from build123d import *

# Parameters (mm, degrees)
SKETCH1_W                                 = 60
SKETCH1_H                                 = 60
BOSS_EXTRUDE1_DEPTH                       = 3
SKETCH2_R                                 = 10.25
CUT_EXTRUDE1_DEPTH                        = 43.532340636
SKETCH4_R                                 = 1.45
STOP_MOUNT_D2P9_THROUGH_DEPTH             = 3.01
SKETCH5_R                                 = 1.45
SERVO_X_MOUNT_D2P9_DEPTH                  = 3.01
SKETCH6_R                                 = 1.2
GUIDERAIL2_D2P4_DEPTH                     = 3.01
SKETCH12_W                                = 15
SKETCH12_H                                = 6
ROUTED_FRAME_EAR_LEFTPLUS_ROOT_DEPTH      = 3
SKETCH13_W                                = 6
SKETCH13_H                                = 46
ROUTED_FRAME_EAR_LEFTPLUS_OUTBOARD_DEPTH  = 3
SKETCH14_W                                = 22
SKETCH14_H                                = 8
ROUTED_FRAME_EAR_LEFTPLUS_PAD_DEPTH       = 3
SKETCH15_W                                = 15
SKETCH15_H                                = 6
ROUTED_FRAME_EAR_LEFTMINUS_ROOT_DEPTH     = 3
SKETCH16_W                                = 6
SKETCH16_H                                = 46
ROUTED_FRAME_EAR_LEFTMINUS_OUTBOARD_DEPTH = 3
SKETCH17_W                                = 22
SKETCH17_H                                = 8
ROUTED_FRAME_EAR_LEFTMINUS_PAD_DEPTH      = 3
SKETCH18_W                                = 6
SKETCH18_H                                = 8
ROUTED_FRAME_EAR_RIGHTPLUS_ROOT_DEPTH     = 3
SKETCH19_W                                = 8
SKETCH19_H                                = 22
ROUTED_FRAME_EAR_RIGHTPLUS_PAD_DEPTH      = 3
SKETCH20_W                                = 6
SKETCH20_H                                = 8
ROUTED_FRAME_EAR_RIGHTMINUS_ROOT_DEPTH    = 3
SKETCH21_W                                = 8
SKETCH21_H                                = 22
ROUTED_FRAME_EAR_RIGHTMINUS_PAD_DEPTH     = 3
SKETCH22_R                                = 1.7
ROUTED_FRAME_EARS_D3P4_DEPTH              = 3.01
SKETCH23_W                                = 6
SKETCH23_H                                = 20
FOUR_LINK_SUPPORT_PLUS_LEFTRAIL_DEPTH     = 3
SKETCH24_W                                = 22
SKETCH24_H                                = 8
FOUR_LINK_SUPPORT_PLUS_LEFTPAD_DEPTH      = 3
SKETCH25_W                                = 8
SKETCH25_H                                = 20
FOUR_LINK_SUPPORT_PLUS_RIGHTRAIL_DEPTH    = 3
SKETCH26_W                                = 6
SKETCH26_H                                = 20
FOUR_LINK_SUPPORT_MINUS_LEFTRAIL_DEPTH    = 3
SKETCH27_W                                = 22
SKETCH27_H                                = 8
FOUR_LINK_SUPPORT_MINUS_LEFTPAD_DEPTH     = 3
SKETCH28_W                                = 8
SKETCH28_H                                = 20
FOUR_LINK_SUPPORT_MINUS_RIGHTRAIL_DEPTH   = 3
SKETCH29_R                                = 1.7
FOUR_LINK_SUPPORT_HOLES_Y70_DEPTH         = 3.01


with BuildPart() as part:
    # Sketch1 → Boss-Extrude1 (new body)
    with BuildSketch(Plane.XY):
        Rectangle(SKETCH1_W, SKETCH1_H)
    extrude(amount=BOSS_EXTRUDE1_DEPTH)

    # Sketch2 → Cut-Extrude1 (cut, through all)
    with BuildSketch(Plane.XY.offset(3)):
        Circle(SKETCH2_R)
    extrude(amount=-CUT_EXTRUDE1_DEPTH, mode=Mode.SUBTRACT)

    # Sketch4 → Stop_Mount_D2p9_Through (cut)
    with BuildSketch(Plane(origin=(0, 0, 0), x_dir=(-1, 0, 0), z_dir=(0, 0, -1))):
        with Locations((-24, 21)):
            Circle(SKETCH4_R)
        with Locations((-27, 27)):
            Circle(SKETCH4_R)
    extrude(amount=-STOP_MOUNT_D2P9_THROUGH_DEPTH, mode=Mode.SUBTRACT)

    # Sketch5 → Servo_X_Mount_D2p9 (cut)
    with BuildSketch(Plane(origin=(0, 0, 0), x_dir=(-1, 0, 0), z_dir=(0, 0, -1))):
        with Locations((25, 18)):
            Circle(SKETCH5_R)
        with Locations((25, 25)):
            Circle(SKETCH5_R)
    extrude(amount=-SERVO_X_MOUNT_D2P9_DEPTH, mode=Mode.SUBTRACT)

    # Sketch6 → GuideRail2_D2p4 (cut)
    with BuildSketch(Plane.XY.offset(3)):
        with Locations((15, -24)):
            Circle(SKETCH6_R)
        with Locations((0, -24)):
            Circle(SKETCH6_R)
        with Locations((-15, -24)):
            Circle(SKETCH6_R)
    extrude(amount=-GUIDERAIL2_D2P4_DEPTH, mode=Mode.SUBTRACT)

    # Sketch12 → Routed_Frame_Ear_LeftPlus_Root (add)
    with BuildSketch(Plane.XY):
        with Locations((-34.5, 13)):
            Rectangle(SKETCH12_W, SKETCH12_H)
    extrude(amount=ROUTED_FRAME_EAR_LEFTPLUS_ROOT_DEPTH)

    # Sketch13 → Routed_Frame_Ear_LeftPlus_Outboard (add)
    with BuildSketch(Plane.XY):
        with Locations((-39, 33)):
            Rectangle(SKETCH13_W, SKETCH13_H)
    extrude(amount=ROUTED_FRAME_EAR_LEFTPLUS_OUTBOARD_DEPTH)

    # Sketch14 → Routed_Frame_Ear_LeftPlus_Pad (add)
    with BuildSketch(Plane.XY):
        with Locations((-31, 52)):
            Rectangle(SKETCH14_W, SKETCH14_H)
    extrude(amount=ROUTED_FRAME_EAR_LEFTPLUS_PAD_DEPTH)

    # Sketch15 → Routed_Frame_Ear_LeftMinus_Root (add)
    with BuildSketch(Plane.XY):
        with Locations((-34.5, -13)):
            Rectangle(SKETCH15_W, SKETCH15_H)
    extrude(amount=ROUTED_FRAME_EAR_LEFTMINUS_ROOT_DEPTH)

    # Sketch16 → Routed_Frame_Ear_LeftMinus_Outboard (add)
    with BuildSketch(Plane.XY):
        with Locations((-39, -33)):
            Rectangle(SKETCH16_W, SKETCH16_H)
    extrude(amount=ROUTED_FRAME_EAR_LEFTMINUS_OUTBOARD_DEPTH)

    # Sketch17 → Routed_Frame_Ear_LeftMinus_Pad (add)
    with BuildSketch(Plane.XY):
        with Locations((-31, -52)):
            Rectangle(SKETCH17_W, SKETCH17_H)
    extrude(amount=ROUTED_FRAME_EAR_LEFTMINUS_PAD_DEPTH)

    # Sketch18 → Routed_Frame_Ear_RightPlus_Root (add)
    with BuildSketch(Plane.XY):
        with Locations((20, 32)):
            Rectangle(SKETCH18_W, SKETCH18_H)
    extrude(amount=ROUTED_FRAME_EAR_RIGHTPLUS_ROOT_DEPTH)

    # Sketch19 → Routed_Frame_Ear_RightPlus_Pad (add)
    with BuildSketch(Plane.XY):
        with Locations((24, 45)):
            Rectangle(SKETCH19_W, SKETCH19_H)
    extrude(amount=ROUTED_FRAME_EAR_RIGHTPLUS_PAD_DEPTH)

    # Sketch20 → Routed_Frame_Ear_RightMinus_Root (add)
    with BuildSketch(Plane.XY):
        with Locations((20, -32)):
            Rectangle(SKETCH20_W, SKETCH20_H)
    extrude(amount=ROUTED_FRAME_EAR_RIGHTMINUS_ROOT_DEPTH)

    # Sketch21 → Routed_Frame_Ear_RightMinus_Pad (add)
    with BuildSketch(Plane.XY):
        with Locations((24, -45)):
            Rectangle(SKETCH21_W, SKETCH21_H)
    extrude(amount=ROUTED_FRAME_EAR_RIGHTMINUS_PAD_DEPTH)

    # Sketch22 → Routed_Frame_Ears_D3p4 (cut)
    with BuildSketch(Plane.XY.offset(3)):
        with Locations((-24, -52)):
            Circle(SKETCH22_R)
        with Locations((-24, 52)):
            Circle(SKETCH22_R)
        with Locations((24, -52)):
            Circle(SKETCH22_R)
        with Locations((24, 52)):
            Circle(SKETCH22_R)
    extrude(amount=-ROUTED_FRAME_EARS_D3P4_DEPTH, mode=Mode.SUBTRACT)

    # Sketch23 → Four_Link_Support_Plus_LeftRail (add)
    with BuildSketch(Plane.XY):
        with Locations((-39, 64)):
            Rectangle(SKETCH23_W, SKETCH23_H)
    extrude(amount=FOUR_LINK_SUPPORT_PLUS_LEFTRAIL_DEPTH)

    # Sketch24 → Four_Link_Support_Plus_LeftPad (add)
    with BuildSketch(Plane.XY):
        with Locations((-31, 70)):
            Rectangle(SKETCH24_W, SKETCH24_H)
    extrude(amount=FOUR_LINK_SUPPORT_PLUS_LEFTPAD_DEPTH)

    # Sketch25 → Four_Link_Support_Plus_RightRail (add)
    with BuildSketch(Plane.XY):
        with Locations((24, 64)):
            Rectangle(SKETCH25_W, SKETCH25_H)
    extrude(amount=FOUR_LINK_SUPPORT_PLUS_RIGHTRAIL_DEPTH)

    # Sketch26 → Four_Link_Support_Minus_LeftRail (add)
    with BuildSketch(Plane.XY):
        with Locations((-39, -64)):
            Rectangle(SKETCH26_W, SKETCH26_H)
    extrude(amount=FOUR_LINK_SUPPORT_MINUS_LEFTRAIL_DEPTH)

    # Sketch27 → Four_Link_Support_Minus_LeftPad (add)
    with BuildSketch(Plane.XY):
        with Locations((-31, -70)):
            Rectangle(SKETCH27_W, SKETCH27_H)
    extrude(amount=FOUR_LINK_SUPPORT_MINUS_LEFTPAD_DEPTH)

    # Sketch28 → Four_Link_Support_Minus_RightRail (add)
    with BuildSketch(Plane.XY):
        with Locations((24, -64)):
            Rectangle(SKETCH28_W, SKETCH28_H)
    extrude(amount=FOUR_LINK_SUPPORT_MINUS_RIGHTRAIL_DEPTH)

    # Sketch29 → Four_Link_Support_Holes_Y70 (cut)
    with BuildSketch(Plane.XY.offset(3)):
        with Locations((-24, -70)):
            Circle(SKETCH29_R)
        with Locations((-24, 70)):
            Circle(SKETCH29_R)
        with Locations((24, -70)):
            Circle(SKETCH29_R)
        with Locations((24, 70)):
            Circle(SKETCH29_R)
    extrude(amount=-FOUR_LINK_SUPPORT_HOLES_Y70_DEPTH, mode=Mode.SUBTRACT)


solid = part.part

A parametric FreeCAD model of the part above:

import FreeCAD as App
import Part
import Sketcher
from FreeCAD import Vector


def add_polygon(sketch, points):
    """Adds a closed chain of lines whose ends are joined by coincident constraints."""
    first, n = sketch.GeometryCount, len(points)
    for a, b in zip(points, points[1:] + points[:1]):
        sketch.addGeometry(Part.LineSegment(App.Vector(*a, 0), App.Vector(*b, 0)), False)
    for i in range(n):
        sketch.addConstraint(Sketcher.Constraint("Coincident", first + i, 2, first + (i + 1) % n, 1))

doc = App.newDocument("Part")
params = doc.addObject("Spreadsheet::Sheet", "Params")
for row, (alias, value) in enumerate([
    ("sketch1_width", "60 mm"),
    ("pad1_length", "3 mm"),
    ("sketch2_diameter", "20.5 mm"),
    ("sketch3_diameter", "2.9 mm"),
    ("pocket2_length", "3.01 mm"),
    ("sketch4_diameter", "2.9 mm"),
    ("pocket3_length", "3.01 mm"),
    ("sketch5_diameter", "2.4 mm"),
    ("pocket4_length", "3.01 mm"),
    ("sketch6_width", "15 mm"),
    ("sketch6_height", "6 mm"),
    ("pad2_length", "3 mm"),
    ("sketch7_width", "6 mm"),
    ("sketch7_height", "46 mm"),
    ("pad3_length", "3 mm"),
    ("sketch8_width", "22 mm"),
    ("sketch8_height", "8 mm"),
    ("pad4_length", "3 mm"),
    ("sketch9_width", "15 mm"),
    ("sketch9_height", "6 mm"),
    ("pad5_length", "3 mm"),
    ("sketch10_width", "6 mm"),
    ("sketch10_height", "46 mm"),
    ("pad6_length", "3 mm"),
    ("sketch11_width", "22 mm"),
    ("sketch11_height", "8 mm"),
    ("pad7_length", "3 mm"),
    ("sketch12_width", "6 mm"),
    ("sketch12_height", "8 mm"),
    ("pad8_length", "3 mm"),
    ("sketch13_width", "8 mm"),
    ("sketch13_height", "22 mm"),
    ("pad9_length", "3 mm"),
    ("sketch14_width", "6 mm"),
    ("sketch14_height", "8 mm"),
    ("pad10_length", "3 mm"),
    ("sketch15_width", "8 mm"),
    ("sketch15_height", "22 mm"),
    ("pad11_length", "3 mm"),
    ("sketch16_diameter", "3.4 mm"),
    ("pocket5_length", "3.01 mm"),
    ("sketch17_width", "6 mm"),
    ("sketch17_height", "20 mm"),
    ("pad12_length", "3 mm"),
    ("sketch18_width", "22 mm"),
    ("sketch18_height", "8 mm"),
    ("pad13_length", "3 mm"),
    ("sketch19_width", "8 mm"),
    ("sketch19_height", "20 mm"),
    ("pad14_length", "3 mm"),
    ("sketch20_width", "6 mm"),
    ("sketch20_height", "20 mm"),
    ("pad15_length", "3 mm"),
    ("sketch21_width", "22 mm"),
    ("sketch21_height", "8 mm"),
    ("pad16_length", "3 mm"),
    ("sketch22_width", "8 mm"),
    ("sketch22_height", "20 mm"),
    ("pad17_length", "3 mm"),
    ("sketch23_diameter", "3.4 mm"),
    ("pocket6_length", "3.01 mm"),
], start=1):
    params.set(f"A{row}", alias)
    params.set(f"B{row}", "=" + value)
    params.setAlias(f"B{row}", alias)

body = doc.addObject("PartDesign::Body", "Body")

# Sketch on XY plane
sketch1 = body.newObject("Sketcher::SketchObject", "Sketch")
sketch1.AttachmentSupport = (doc.getObject("XY_Plane"), [""])
sketch1.MapMode = "FlatFace"
add_polygon(sketch1, [(-30, 30), (-30, -30), (30, -30), (30, 30)])  # lines 0-3
sketch1.addConstraint(Sketcher.Constraint("Vertical", 0))
sketch1.addConstraint(Sketcher.Constraint("Horizontal", 1))
sketch1.addConstraint(Sketcher.Constraint("Vertical", 2))
sketch1.addConstraint(Sketcher.Constraint("Horizontal", 3))
sketch1.addConstraint(Sketcher.Constraint("Symmetric", 0, 2, 2, 2, -1, 1))
sketch1.addConstraint(Sketcher.Constraint("Equal", 3, 0))
sketch1.addConstraint(Sketcher.Constraint("DistanceX", 1, 1, 1, 2, 60.0))
sketch1.setExpression("Constraints[10]", "Params.sketch1_width")
pad1 = body.newObject("PartDesign::Pad", "Pad")
pad1.Profile = sketch1
pad1.setExpression("Length", "Params.pad1_length")

# Sketch on XY plane
sketch2 = body.newObject("Sketcher::SketchObject", "Sketch001")
sketch2.AttachmentSupport = (doc.getObject("XY_Plane"), [""])
sketch2.MapMode = "FlatFace"
sketch2.AttachmentOffset = App.Placement(Vector(0, 0, 3), App.Rotation())
sketch2.addGeometry(Part.Circle(Vector(0, 0, 0), Vector(0, 0, 1), 10), False)
sketch2.addConstraint(Sketcher.Constraint("Coincident", 0, 3, -1, 1))
sketch2.addConstraint(Sketcher.Constraint("Diameter", 0, 20.5))
sketch2.setExpression("Constraints[1]", "Params.sketch2_diameter")
pocket1 = body.newObject("PartDesign::Pocket", "Pocket")
pocket1.Profile = sketch2
pocket1.Type = "ThroughAll"

# Sketch on XY plane
sketch3 = body.newObject("Sketcher::SketchObject", "Sketch002")
sketch3.AttachmentSupport = (doc.getObject("XY_Plane"), [""])
sketch3.MapMode = "FlatFace"
sketch3.addGeometry(Part.Circle(Vector(24, 21, 0), Vector(0, 0, 1), 1.4), False)
sketch3.addGeometry(Part.Circle(Vector(27, 27, 0), Vector(0, 0, 1), 1.4), False)
sketch3.addConstraint(Sketcher.Constraint("Equal", 0, 1))
sketch3.addConstraint(Sketcher.Constraint("Diameter", 0, 2.9))
sketch3.addConstraint(Sketcher.Constraint("DistanceX", -1, 1, 0, 3, 24.0))
sketch3.addConstraint(Sketcher.Constraint("DistanceY", -1, 1, 0, 3, 21.0))
sketch3.addConstraint(Sketcher.Constraint("DistanceX", -1, 1, 1, 3, 27.0))
sketch3.addConstraint(Sketcher.Constraint("DistanceY", -1, 1, 1, 3, 27.0))
sketch3.setExpression("Constraints[1]", "Params.sketch3_diameter")
pocket2 = body.newObject("PartDesign::Pocket", "Pocket001")
pocket2.Profile = sketch3
pocket2.setExpression("Length", "Params.pocket2_length")
pocket2.Reversed = True

# Sketch on XY plane
sketch4 = body.newObject("Sketcher::SketchObject", "Sketch003")
sketch4.AttachmentSupport = (doc.getObject("XY_Plane"), [""])
sketch4.MapMode = "FlatFace"
sketch4.addGeometry(Part.Circle(Vector(-25, 18, 0), Vector(0, 0, 1), 1.4), False)
sketch4.addGeometry(Part.Circle(Vector(-25, 25, 0), Vector(0, 0, 1), 1.4), False)
sketch4.addConstraint(Sketcher.Constraint("Equal", 0, 1))
sketch4.addConstraint(Sketcher.Constraint("Vertical", 0, 3, 1, 3))
sketch4.addConstraint(Sketcher.Constraint("Diameter", 0, 2.9))
sketch4.addConstraint(Sketcher.Constraint("DistanceX", 0, 3, -1, 1, 25.0))
sketch4.addConstraint(Sketcher.Constraint("DistanceY", -1, 1, 0, 3, 18.0))
sketch4.addConstraint(Sketcher.Constraint("DistanceY", -1, 1, 1, 3, 25.0))
sketch4.setExpression("Constraints[2]", "Params.sketch4_diameter")
pocket3 = body.newObject("PartDesign::Pocket", "Pocket002")
pocket3.Profile = sketch4
pocket3.setExpression("Length", "Params.pocket3_length")
pocket3.Reversed = True

# Sketch on XY plane
sketch5 = body.newObject("Sketcher::SketchObject", "Sketch004")
sketch5.AttachmentSupport = (doc.getObject("XY_Plane"), [""])
sketch5.MapMode = "FlatFace"
sketch5.AttachmentOffset = App.Placement(Vector(0, 0, 3), App.Rotation())
sketch5.addGeometry(Part.Circle(Vector(15, -24, 0), Vector(0, 0, 1), 1.2), False)
sketch5.addGeometry(Part.Circle(Vector(0, -24, 0), Vector(0, 0, 1), 1.2), False)
sketch5.addGeometry(Part.Circle(Vector(-15, -24, 0), Vector(0, 0, 1), 1.2), False)
sketch5.addConstraint(Sketcher.Constraint("Equal", 0, 1))
sketch5.addConstraint(Sketcher.Constraint("Equal", 1, 2))
sketch5.addConstraint(Sketcher.Constraint("Symmetric", 0, 3, 2, 3, -2))
sketch5.addConstraint(Sketcher.Constraint("PointOnObject", 1, 3, -2))
sketch5.addConstraint(Sketcher.Constraint("Horizontal", 0, 3, 1, 3))
sketch5.addConstraint(Sketcher.Constraint("Diameter", 0, 2.4))
sketch5.addConstraint(Sketcher.Constraint("DistanceX", -1, 1, 0, 3, 15.0))
sketch5.addConstraint(Sketcher.Constraint("DistanceY", 0, 3, -1, 1, 24.0))
sketch5.setExpression("Constraints[5]", "Params.sketch5_diameter")
pocket4 = body.newObject("PartDesign::Pocket", "Pocket003")
pocket4.Profile = sketch5
pocket4.setExpression("Length", "Params.pocket4_length")

# Sketch on XY plane
sketch6 = body.newObject("Sketcher::SketchObject", "Sketch005")
sketch6.AttachmentSupport = (doc.getObject("XY_Plane"), [""])
sketch6.MapMode = "FlatFace"
add_polygon(sketch6, [(-42, 16), (-42, 10), (-27, 10), (-27, 16)])  # lines 0-3
sketch6.addConstraint(Sketcher.Constraint("Vertical", 0))
sketch6.addConstraint(Sketcher.Constraint("Horizontal", 1))
sketch6.addConstraint(Sketcher.Constraint("Vertical", 2))
sketch6.addConstraint(Sketcher.Constraint("Horizontal", 3))
sketch6.addConstraint(Sketcher.Constraint("DistanceX", 1, 1, 1, 2, 15.0))
sketch6.addConstraint(Sketcher.Constraint("DistanceY", 0, 2, 0, 1, 6.0))
sketch6.addConstraint(Sketcher.Constraint("DistanceX", 0, 2, -1, 1, 42.0))
sketch6.addConstraint(Sketcher.Constraint("DistanceY", -1, 1, 0, 2, 10.0))
sketch6.setExpression("Constraints[8]", "Params.sketch6_width")
sketch6.setExpression("Constraints[9]", "Params.sketch6_height")
pad2 = body.newObject("PartDesign::Pad", "Pad001")
pad2.Profile = sketch6
pad2.setExpression("Length", "Params.pad2_length")

# Sketch on XY plane
sketch7 = body.newObject("Sketcher::SketchObject", "Sketch006")
sketch7.AttachmentSupport = (doc.getObject("XY_Plane"), [""])
sketch7.MapMode = "FlatFace"
add_polygon(sketch7, [(-42, 56), (-42, 10), (-36, 10), (-36, 56)])  # lines 0-3
sketch7.addConstraint(Sketcher.Constraint("Vertical", 0))
sketch7.addConstraint(Sketcher.Constraint("Horizontal", 1))
sketch7.addConstraint(Sketcher.Constraint("Vertical", 2))
sketch7.addConstraint(Sketcher.Constraint("Horizontal", 3))
sketch7.addConstraint(Sketcher.Constraint("DistanceX", 1, 1, 1, 2, 6.0))
sketch7.addConstraint(Sketcher.Constraint("DistanceY", 0, 2, 0, 1, 46.0))
sketch7.addConstraint(Sketcher.Constraint("DistanceX", 0, 2, -1, 1, 42.0))
sketch7.addConstraint(Sketcher.Constraint("DistanceY", -1, 1, 0, 2, 10.0))
sketch7.setExpression("Constraints[8]", "Params.sketch7_width")
sketch7.setExpression("Constraints[9]", "Params.sketch7_height")
pad3 = body.newObject("PartDesign::Pad", "Pad002")
pad3.Profile = sketch7
pad3.setExpression("Length", "Params.pad3_length")

# Sketch on XY plane
sketch8 = body.newObject("Sketcher::SketchObject", "Sketch007")
sketch8.AttachmentSupport = (doc.getObject("XY_Plane"), [""])
sketch8.MapMode = "FlatFace"
add_polygon(sketch8, [(-42, 56), (-42, 48), (-20, 48), (-20, 56)])  # lines 0-3
sketch8.addConstraint(Sketcher.Constraint("Vertical", 0))
sketch8.addConstraint(Sketcher.Constraint("Horizontal", 1))
sketch8.addConstraint(Sketcher.Constraint("Vertical", 2))
sketch8.addConstraint(Sketcher.Constraint("Horizontal", 3))
sketch8.addConstraint(Sketcher.Constraint("DistanceX", 1, 1, 1, 2, 22.0))
sketch8.addConstraint(Sketcher.Constraint("DistanceY", 0, 2, 0, 1, 8.0))
sketch8.addConstraint(Sketcher.Constraint("DistanceX", 0, 2, -1, 1, 42.0))
sketch8.addConstraint(Sketcher.Constraint("DistanceY", -1, 1, 0, 2, 48.0))
sketch8.setExpression("Constraints[8]", "Params.sketch8_width")
sketch8.setExpression("Constraints[9]", "Params.sketch8_height")
pad4 = body.newObject("PartDesign::Pad", "Pad003")
pad4.Profile = sketch8
pad4.setExpression("Length", "Params.pad4_length")

# Sketch on XY plane
sketch9 = body.newObject("Sketcher::SketchObject", "Sketch008")
sketch9.AttachmentSupport = (doc.getObject("XY_Plane"), [""])
sketch9.MapMode = "FlatFace"
add_polygon(sketch9, [(-42, -10), (-42, -16), (-27, -16), (-27, -10)])  # lines 0-3
sketch9.addConstraint(Sketcher.Constraint("Vertical", 0))
sketch9.addConstraint(Sketcher.Constraint("Horizontal", 1))
sketch9.addConstraint(Sketcher.Constraint("Vertical", 2))
sketch9.addConstraint(Sketcher.Constraint("Horizontal", 3))
sketch9.addConstraint(Sketcher.Constraint("DistanceX", 1, 1, 1, 2, 15.0))
sketch9.addConstraint(Sketcher.Constraint("DistanceY", 0, 2, 0, 1, 6.0))
sketch9.addConstraint(Sketcher.Constraint("DistanceX", 0, 2, -1, 1, 42.0))
sketch9.addConstraint(Sketcher.Constraint("DistanceY", 0, 2, -1, 1, 16.0))
sketch9.setExpression("Constraints[8]", "Params.sketch9_width")
sketch9.setExpression("Constraints[9]", "Params.sketch9_height")
pad5 = body.newObject("PartDesign::Pad", "Pad004")
pad5.Profile = sketch9
pad5.setExpression("Length", "Params.pad5_length")

# Sketch on XY plane
sketch10 = body.newObject("Sketcher::SketchObject", "Sketch009")
sketch10.AttachmentSupport = (doc.getObject("XY_Plane"), [""])
sketch10.MapMode = "FlatFace"
add_polygon(sketch10, [(-42, -10), (-42, -56), (-36, -56), (-36, -10)])  # lines 0-3
sketch10.addConstraint(Sketcher.Constraint("Vertical", 0))
sketch10.addConstraint(Sketcher.Constraint("Horizontal", 1))
sketch10.addConstraint(Sketcher.Constraint("Vertical", 2))
sketch10.addConstraint(Sketcher.Constraint("Horizontal", 3))
sketch10.addConstraint(Sketcher.Constraint("DistanceX", 1, 1, 1, 2, 6.0))
sketch10.addConstraint(Sketcher.Constraint("DistanceY", 0, 2, 0, 1, 46.0))
sketch10.addConstraint(Sketcher.Constraint("DistanceX", 0, 2, -1, 1, 42.0))
sketch10.addConstraint(Sketcher.Constraint("DistanceY", 0, 2, -1, 1, 56.0))
sketch10.setExpression("Constraints[8]", "Params.sketch10_width")
sketch10.setExpression("Constraints[9]", "Params.sketch10_height")
pad6 = body.newObject("PartDesign::Pad", "Pad005")
pad6.Profile = sketch10
pad6.setExpression("Length", "Params.pad6_length")

# Sketch on XY plane
sketch11 = body.newObject("Sketcher::SketchObject", "Sketch010")
sketch11.AttachmentSupport = (doc.getObject("XY_Plane"), [""])
sketch11.MapMode = "FlatFace"
add_polygon(sketch11, [(-42, -48), (-42, -56), (-20, -56), (-20, -48)])  # lines 0-3
sketch11.addConstraint(Sketcher.Constraint("Vertical", 0))
sketch11.addConstraint(Sketcher.Constraint("Horizontal", 1))
sketch11.addConstraint(Sketcher.Constraint("Vertical", 2))
sketch11.addConstraint(Sketcher.Constraint("Horizontal", 3))
sketch11.addConstraint(Sketcher.Constraint("DistanceX", 1, 1, 1, 2, 22.0))
sketch11.addConstraint(Sketcher.Constraint("DistanceY", 0, 2, 0, 1, 8.0))
sketch11.addConstraint(Sketcher.Constraint("DistanceX", 0, 2, -1, 1, 42.0))
sketch11.addConstraint(Sketcher.Constraint("DistanceY", 0, 2, -1, 1, 56.0))
sketch11.setExpression("Constraints[8]", "Params.sketch11_width")
sketch11.setExpression("Constraints[9]", "Params.sketch11_height")
pad7 = body.newObject("PartDesign::Pad", "Pad006")
pad7.Profile = sketch11
pad7.setExpression("Length", "Params.pad7_length")

# Sketch on XY plane
sketch12 = body.newObject("Sketcher::SketchObject", "Sketch011")
sketch12.AttachmentSupport = (doc.getObject("XY_Plane"), [""])
sketch12.MapMode = "FlatFace"
add_polygon(sketch12, [(17, 36), (17, 28), (23, 28), (23, 36)])  # lines 0-3
sketch12.addConstraint(Sketcher.Constraint("Vertical", 0))
sketch12.addConstraint(Sketcher.Constraint("Horizontal", 1))
sketch12.addConstraint(Sketcher.Constraint("Vertical", 2))
sketch12.addConstraint(Sketcher.Constraint("Horizontal", 3))
sketch12.addConstraint(Sketcher.Constraint("DistanceX", 1, 1, 1, 2, 6.0))
sketch12.addConstraint(Sketcher.Constraint("DistanceY", 0, 2, 0, 1, 8.0))
sketch12.addConstraint(Sketcher.Constraint("DistanceX", -1, 1, 0, 2, 17.0))
sketch12.addConstraint(Sketcher.Constraint("DistanceY", -1, 1, 0, 2, 28.0))
sketch12.setExpression("Constraints[8]", "Params.sketch12_width")
sketch12.setExpression("Constraints[9]", "Params.sketch12_height")
pad8 = body.newObject("PartDesign::Pad", "Pad007")
pad8.Profile = sketch12
pad8.setExpression("Length", "Params.pad8_length")

# Sketch on XY plane
sketch13 = body.newObject("Sketcher::SketchObject", "Sketch012")
sketch13.AttachmentSupport = (doc.getObject("XY_Plane"), [""])
sketch13.MapMode = "FlatFace"
add_polygon(sketch13, [(20, 56), (20, 34), (28, 34), (28, 56)])  # lines 0-3
sketch13.addConstraint(Sketcher.Constraint("Vertical", 0))
sketch13.addConstraint(Sketcher.Constraint("Horizontal", 1))
sketch13.addConstraint(Sketcher.Constraint("Vertical", 2))
sketch13.addConstraint(Sketcher.Constraint("Horizontal", 3))
sketch13.addConstraint(Sketcher.Constraint("DistanceX", 1, 1, 1, 2, 8.0))
sketch13.addConstraint(Sketcher.Constraint("DistanceY", 0, 2, 0, 1, 22.0))
sketch13.addConstraint(Sketcher.Constraint("DistanceX", -1, 1, 0, 2, 20.0))
sketch13.addConstraint(Sketcher.Constraint("DistanceY", -1, 1, 0, 2, 34.0))
sketch13.setExpression("Constraints[8]", "Params.sketch13_width")
sketch13.setExpression("Constraints[9]", "Params.sketch13_height")
pad9 = body.newObject("PartDesign::Pad", "Pad008")
pad9.Profile = sketch13
pad9.setExpression("Length", "Params.pad9_length")

# Sketch on XY plane
sketch14 = body.newObject("Sketcher::SketchObject", "Sketch013")
sketch14.AttachmentSupport = (doc.getObject("XY_Plane"), [""])
sketch14.MapMode = "FlatFace"
add_polygon(sketch14, [(17, -28), (17, -36), (23, -36), (23, -28)])  # lines 0-3
sketch14.addConstraint(Sketcher.Constraint("Vertical", 0))
sketch14.addConstraint(Sketcher.Constraint("Horizontal", 1))
sketch14.addConstraint(Sketcher.Constraint("Vertical", 2))
sketch14.addConstraint(Sketcher.Constraint("Horizontal", 3))
sketch14.addConstraint(Sketcher.Constraint("DistanceX", 1, 1, 1, 2, 6.0))
sketch14.addConstraint(Sketcher.Constraint("DistanceY", 0, 2, 0, 1, 8.0))
sketch14.addConstraint(Sketcher.Constraint("DistanceX", -1, 1, 0, 2, 17.0))
sketch14.addConstraint(Sketcher.Constraint("DistanceY", 0, 2, -1, 1, 36.0))
sketch14.setExpression("Constraints[8]", "Params.sketch14_width")
sketch14.setExpression("Constraints[9]", "Params.sketch14_height")
pad10 = body.newObject("PartDesign::Pad", "Pad009")
pad10.Profile = sketch14
pad10.setExpression("Length", "Params.pad10_length")

# Sketch on XY plane
sketch15 = body.newObject("Sketcher::SketchObject", "Sketch014")
sketch15.AttachmentSupport = (doc.getObject("XY_Plane"), [""])
sketch15.MapMode = "FlatFace"
add_polygon(sketch15, [(20, -34), (20, -56), (28, -56), (28, -34)])  # lines 0-3
sketch15.addConstraint(Sketcher.Constraint("Vertical", 0))
sketch15.addConstraint(Sketcher.Constraint("Horizontal", 1))
sketch15.addConstraint(Sketcher.Constraint("Vertical", 2))
sketch15.addConstraint(Sketcher.Constraint("Horizontal", 3))
sketch15.addConstraint(Sketcher.Constraint("DistanceX", 1, 1, 1, 2, 8.0))
sketch15.addConstraint(Sketcher.Constraint("DistanceY", 0, 2, 0, 1, 22.0))
sketch15.addConstraint(Sketcher.Constraint("DistanceX", -1, 1, 0, 2, 20.0))
sketch15.addConstraint(Sketcher.Constraint("DistanceY", 0, 2, -1, 1, 56.0))
sketch15.setExpression("Constraints[8]", "Params.sketch15_width")
sketch15.setExpression("Constraints[9]", "Params.sketch15_height")
pad11 = body.newObject("PartDesign::Pad", "Pad010")
pad11.Profile = sketch15
pad11.setExpression("Length", "Params.pad11_length")

# Sketch on XY plane
sketch16 = body.newObject("Sketcher::SketchObject", "Sketch015")
sketch16.AttachmentSupport = (doc.getObject("XY_Plane"), [""])
sketch16.MapMode = "FlatFace"
sketch16.AttachmentOffset = App.Placement(Vector(0, 0, 3), App.Rotation())
sketch16.addGeometry(Part.Circle(Vector(-24, -52, 0), Vector(0, 0, 1), 1.7), False)
sketch16.addGeometry(Part.Circle(Vector(-24, 52, 0), Vector(0, 0, 1), 1.7), False)
sketch16.addGeometry(Part.Circle(Vector(24, -52, 0), Vector(0, 0, 1), 1.7), False)
sketch16.addGeometry(Part.Circle(Vector(24, 52, 0), Vector(0, 0, 1), 1.7), False)
sketch16.addConstraint(Sketcher.Constraint("Equal", 0, 1))
sketch16.addConstraint(Sketcher.Constraint("Equal", 1, 2))
sketch16.addConstraint(Sketcher.Constraint("Equal", 2, 3))
sketch16.addConstraint(Sketcher.Constraint("Symmetric", 1, 3, 2, 3, -1, 1))
sketch16.addConstraint(Sketcher.Constraint("Symmetric", 0, 3, 3, 3, -1, 1))
sketch16.addConstraint(Sketcher.Constraint("Symmetric", 0, 3, 2, 3, -2))
sketch16.addConstraint(Sketcher.Constraint("Diameter", 0, 3.4))
sketch16.addConstraint(Sketcher.Constraint("DistanceX", 0, 3, -1, 1, 24.0))
sketch16.addConstraint(Sketcher.Constraint("DistanceY", 0, 3, -1, 1, 52.0))
sketch16.setExpression("Constraints[6]", "Params.sketch16_diameter")
pocket5 = body.newObject("PartDesign::Pocket", "Pocket004")
pocket5.Profile = sketch16
pocket5.setExpression("Length", "Params.pocket5_length")

# Sketch on XY plane
sketch17 = body.newObject("Sketcher::SketchObject", "Sketch016")
sketch17.AttachmentSupport = (doc.getObject("XY_Plane"), [""])
sketch17.MapMode = "FlatFace"
add_polygon(sketch17, [(-42, 74), (-42, 54), (-36, 54), (-36, 74)])  # lines 0-3
sketch17.addConstraint(Sketcher.Constraint("Vertical", 0))
sketch17.addConstraint(Sketcher.Constraint("Horizontal", 1))
sketch17.addConstraint(Sketcher.Constraint("Vertical", 2))
sketch17.addConstraint(Sketcher.Constraint("Horizontal", 3))
sketch17.addConstraint(Sketcher.Constraint("DistanceX", 1, 1, 1, 2, 6.0))
sketch17.addConstraint(Sketcher.Constraint("DistanceY", 0, 2, 0, 1, 20.0))
sketch17.addConstraint(Sketcher.Constraint("DistanceX", 0, 2, -1, 1, 42.0))
sketch17.addConstraint(Sketcher.Constraint("DistanceY", -1, 1, 0, 2, 54.0))
sketch17.setExpression("Constraints[8]", "Params.sketch17_width")
sketch17.setExpression("Constraints[9]", "Params.sketch17_height")
pad12 = body.newObject("PartDesign::Pad", "Pad011")
pad12.Profile = sketch17
pad12.setExpression("Length", "Params.pad12_length")

# Sketch on XY plane
sketch18 = body.newObject("Sketcher::SketchObject", "Sketch017")
sketch18.AttachmentSupport = (doc.getObject("XY_Plane"), [""])
sketch18.MapMode = "FlatFace"
add_polygon(sketch18, [(-42, 74), (-42, 66), (-20, 66), (-20, 74)])  # lines 0-3
sketch18.addConstraint(Sketcher.Constraint("Vertical", 0))
sketch18.addConstraint(Sketcher.Constraint("Horizontal", 1))
sketch18.addConstraint(Sketcher.Constraint("Vertical", 2))
sketch18.addConstraint(Sketcher.Constraint("Horizontal", 3))
sketch18.addConstraint(Sketcher.Constraint("DistanceX", 1, 1, 1, 2, 22.0))
sketch18.addConstraint(Sketcher.Constraint("DistanceY", 0, 2, 0, 1, 8.0))
sketch18.addConstraint(Sketcher.Constraint("DistanceX", 0, 2, -1, 1, 42.0))
sketch18.addConstraint(Sketcher.Constraint("DistanceY", -1, 1, 0, 2, 66.0))
sketch18.setExpression("Constraints[8]", "Params.sketch18_width")
sketch18.setExpression("Constraints[9]", "Params.sketch18_height")
pad13 = body.newObject("PartDesign::Pad", "Pad012")
pad13.Profile = sketch18
pad13.setExpression("Length", "Params.pad13_length")

# Sketch on XY plane
sketch19 = body.newObject("Sketcher::SketchObject", "Sketch018")
sketch19.AttachmentSupport = (doc.getObject("XY_Plane"), [""])
sketch19.MapMode = "FlatFace"
add_polygon(sketch19, [(20, 74), (20, 54), (28, 54), (28, 74)])  # lines 0-3
sketch19.addConstraint(Sketcher.Constraint("Vertical", 0))
sketch19.addConstraint(Sketcher.Constraint("Horizontal", 1))
sketch19.addConstraint(Sketcher.Constraint("Vertical", 2))
sketch19.addConstraint(Sketcher.Constraint("Horizontal", 3))
sketch19.addConstraint(Sketcher.Constraint("DistanceX", 1, 1, 1, 2, 8.0))
sketch19.addConstraint(Sketcher.Constraint("DistanceY", 0, 2, 0, 1, 20.0))
sketch19.addConstraint(Sketcher.Constraint("DistanceX", -1, 1, 0, 2, 20.0))
sketch19.addConstraint(Sketcher.Constraint("DistanceY", -1, 1, 0, 2, 54.0))
sketch19.setExpression("Constraints[8]", "Params.sketch19_width")
sketch19.setExpression("Constraints[9]", "Params.sketch19_height")
pad14 = body.newObject("PartDesign::Pad", "Pad013")
pad14.Profile = sketch19
pad14.setExpression("Length", "Params.pad14_length")

# Sketch on XY plane
sketch20 = body.newObject("Sketcher::SketchObject", "Sketch019")
sketch20.AttachmentSupport = (doc.getObject("XY_Plane"), [""])
sketch20.MapMode = "FlatFace"
add_polygon(sketch20, [(-42, -54), (-42, -74), (-36, -74), (-36, -54)])  # lines 0-3
sketch20.addConstraint(Sketcher.Constraint("Vertical", 0))
sketch20.addConstraint(Sketcher.Constraint("Horizontal", 1))
sketch20.addConstraint(Sketcher.Constraint("Vertical", 2))
sketch20.addConstraint(Sketcher.Constraint("Horizontal", 3))
sketch20.addConstraint(Sketcher.Constraint("DistanceX", 1, 1, 1, 2, 6.0))
sketch20.addConstraint(Sketcher.Constraint("DistanceY", 0, 2, 0, 1, 20.0))
sketch20.addConstraint(Sketcher.Constraint("DistanceX", 0, 2, -1, 1, 42.0))
sketch20.addConstraint(Sketcher.Constraint("DistanceY", 0, 2, -1, 1, 74.0))
sketch20.setExpression("Constraints[8]", "Params.sketch20_width")
sketch20.setExpression("Constraints[9]", "Params.sketch20_height")
pad15 = body.newObject("PartDesign::Pad", "Pad014")
pad15.Profile = sketch20
pad15.setExpression("Length", "Params.pad15_length")

# Sketch on XY plane
sketch21 = body.newObject("Sketcher::SketchObject", "Sketch020")
sketch21.AttachmentSupport = (doc.getObject("XY_Plane"), [""])
sketch21.MapMode = "FlatFace"
add_polygon(sketch21, [(-42, -66), (-42, -74), (-20, -74), (-20, -66)])  # lines 0-3
sketch21.addConstraint(Sketcher.Constraint("Vertical", 0))
sketch21.addConstraint(Sketcher.Constraint("Horizontal", 1))
sketch21.addConstraint(Sketcher.Constraint("Vertical", 2))
sketch21.addConstraint(Sketcher.Constraint("Horizontal", 3))
sketch21.addConstraint(Sketcher.Constraint("DistanceX", 1, 1, 1, 2, 22.0))
sketch21.addConstraint(Sketcher.Constraint("DistanceY", 0, 2, 0, 1, 8.0))
sketch21.addConstraint(Sketcher.Constraint("DistanceX", 0, 2, -1, 1, 42.0))
sketch21.addConstraint(Sketcher.Constraint("DistanceY", 0, 2, -1, 1, 74.0))
sketch21.setExpression("Constraints[8]", "Params.sketch21_width")
sketch21.setExpression("Constraints[9]", "Params.sketch21_height")
pad16 = body.newObject("PartDesign::Pad", "Pad015")
pad16.Profile = sketch21
pad16.setExpression("Length", "Params.pad16_length")

# Sketch on XY plane
sketch22 = body.newObject("Sketcher::SketchObject", "Sketch021")
sketch22.AttachmentSupport = (doc.getObject("XY_Plane"), [""])
sketch22.MapMode = "FlatFace"
add_polygon(sketch22, [(20, -54), (20, -74), (28, -74), (28, -54)])  # lines 0-3
sketch22.addConstraint(Sketcher.Constraint("Vertical", 0))
sketch22.addConstraint(Sketcher.Constraint("Horizontal", 1))
sketch22.addConstraint(Sketcher.Constraint("Vertical", 2))
sketch22.addConstraint(Sketcher.Constraint("Horizontal", 3))
sketch22.addConstraint(Sketcher.Constraint("DistanceX", 1, 1, 1, 2, 8.0))
sketch22.addConstraint(Sketcher.Constraint("DistanceY", 0, 2, 0, 1, 20.0))
sketch22.addConstraint(Sketcher.Constraint("DistanceX", -1, 1, 0, 2, 20.0))
sketch22.addConstraint(Sketcher.Constraint("DistanceY", 0, 2, -1, 1, 74.0))
sketch22.setExpression("Constraints[8]", "Params.sketch22_width")
sketch22.setExpression("Constraints[9]", "Params.sketch22_height")
pad17 = body.newObject("PartDesign::Pad", "Pad016")
pad17.Profile = sketch22
pad17.setExpression("Length", "Params.pad17_length")

# Sketch on XY plane
sketch23 = body.newObject("Sketcher::SketchObject", "Sketch022")
sketch23.AttachmentSupport = (doc.getObject("XY_Plane"), [""])
sketch23.MapMode = "FlatFace"
sketch23.AttachmentOffset = App.Placement(Vector(0, 0, 3), App.Rotation())
sketch23.addGeometry(Part.Circle(Vector(-24, -70, 0), Vector(0, 0, 1), 1.7), False)
sketch23.addGeometry(Part.Circle(Vector(-24, 70, 0), Vector(0, 0, 1), 1.7), False)
sketch23.addGeometry(Part.Circle(Vector(24, -70, 0), Vector(0, 0, 1), 1.7), False)
sketch23.addGeometry(Part.Circle(Vector(24, 70, 0), Vector(0, 0, 1), 1.7), False)
sketch23.addConstraint(Sketcher.Constraint("Equal", 0, 1))
sketch23.addConstraint(Sketcher.Constraint("Equal", 1, 2))
sketch23.addConstraint(Sketcher.Constraint("Equal", 2, 3))
sketch23.addConstraint(Sketcher.Constraint("Symmetric", 1, 3, 2, 3, -1, 1))
sketch23.addConstraint(Sketcher.Constraint("Symmetric", 0, 3, 3, 3, -1, 1))
sketch23.addConstraint(Sketcher.Constraint("Symmetric", 0, 3, 2, 3, -2))
sketch23.addConstraint(Sketcher.Constraint("Diameter", 0, 3.4))
sketch23.addConstraint(Sketcher.Constraint("DistanceX", 0, 3, -1, 1, 24.0))
sketch23.addConstraint(Sketcher.Constraint("DistanceY", 0, 3, -1, 1, 70.0))
sketch23.setExpression("Constraints[6]", "Params.sketch23_diameter")
pocket6 = body.newObject("PartDesign::Pocket", "Pocket005")
pocket6.Profile = sketch23
pocket6.setExpression("Length", "Params.pocket6_length")

doc.recompute()
